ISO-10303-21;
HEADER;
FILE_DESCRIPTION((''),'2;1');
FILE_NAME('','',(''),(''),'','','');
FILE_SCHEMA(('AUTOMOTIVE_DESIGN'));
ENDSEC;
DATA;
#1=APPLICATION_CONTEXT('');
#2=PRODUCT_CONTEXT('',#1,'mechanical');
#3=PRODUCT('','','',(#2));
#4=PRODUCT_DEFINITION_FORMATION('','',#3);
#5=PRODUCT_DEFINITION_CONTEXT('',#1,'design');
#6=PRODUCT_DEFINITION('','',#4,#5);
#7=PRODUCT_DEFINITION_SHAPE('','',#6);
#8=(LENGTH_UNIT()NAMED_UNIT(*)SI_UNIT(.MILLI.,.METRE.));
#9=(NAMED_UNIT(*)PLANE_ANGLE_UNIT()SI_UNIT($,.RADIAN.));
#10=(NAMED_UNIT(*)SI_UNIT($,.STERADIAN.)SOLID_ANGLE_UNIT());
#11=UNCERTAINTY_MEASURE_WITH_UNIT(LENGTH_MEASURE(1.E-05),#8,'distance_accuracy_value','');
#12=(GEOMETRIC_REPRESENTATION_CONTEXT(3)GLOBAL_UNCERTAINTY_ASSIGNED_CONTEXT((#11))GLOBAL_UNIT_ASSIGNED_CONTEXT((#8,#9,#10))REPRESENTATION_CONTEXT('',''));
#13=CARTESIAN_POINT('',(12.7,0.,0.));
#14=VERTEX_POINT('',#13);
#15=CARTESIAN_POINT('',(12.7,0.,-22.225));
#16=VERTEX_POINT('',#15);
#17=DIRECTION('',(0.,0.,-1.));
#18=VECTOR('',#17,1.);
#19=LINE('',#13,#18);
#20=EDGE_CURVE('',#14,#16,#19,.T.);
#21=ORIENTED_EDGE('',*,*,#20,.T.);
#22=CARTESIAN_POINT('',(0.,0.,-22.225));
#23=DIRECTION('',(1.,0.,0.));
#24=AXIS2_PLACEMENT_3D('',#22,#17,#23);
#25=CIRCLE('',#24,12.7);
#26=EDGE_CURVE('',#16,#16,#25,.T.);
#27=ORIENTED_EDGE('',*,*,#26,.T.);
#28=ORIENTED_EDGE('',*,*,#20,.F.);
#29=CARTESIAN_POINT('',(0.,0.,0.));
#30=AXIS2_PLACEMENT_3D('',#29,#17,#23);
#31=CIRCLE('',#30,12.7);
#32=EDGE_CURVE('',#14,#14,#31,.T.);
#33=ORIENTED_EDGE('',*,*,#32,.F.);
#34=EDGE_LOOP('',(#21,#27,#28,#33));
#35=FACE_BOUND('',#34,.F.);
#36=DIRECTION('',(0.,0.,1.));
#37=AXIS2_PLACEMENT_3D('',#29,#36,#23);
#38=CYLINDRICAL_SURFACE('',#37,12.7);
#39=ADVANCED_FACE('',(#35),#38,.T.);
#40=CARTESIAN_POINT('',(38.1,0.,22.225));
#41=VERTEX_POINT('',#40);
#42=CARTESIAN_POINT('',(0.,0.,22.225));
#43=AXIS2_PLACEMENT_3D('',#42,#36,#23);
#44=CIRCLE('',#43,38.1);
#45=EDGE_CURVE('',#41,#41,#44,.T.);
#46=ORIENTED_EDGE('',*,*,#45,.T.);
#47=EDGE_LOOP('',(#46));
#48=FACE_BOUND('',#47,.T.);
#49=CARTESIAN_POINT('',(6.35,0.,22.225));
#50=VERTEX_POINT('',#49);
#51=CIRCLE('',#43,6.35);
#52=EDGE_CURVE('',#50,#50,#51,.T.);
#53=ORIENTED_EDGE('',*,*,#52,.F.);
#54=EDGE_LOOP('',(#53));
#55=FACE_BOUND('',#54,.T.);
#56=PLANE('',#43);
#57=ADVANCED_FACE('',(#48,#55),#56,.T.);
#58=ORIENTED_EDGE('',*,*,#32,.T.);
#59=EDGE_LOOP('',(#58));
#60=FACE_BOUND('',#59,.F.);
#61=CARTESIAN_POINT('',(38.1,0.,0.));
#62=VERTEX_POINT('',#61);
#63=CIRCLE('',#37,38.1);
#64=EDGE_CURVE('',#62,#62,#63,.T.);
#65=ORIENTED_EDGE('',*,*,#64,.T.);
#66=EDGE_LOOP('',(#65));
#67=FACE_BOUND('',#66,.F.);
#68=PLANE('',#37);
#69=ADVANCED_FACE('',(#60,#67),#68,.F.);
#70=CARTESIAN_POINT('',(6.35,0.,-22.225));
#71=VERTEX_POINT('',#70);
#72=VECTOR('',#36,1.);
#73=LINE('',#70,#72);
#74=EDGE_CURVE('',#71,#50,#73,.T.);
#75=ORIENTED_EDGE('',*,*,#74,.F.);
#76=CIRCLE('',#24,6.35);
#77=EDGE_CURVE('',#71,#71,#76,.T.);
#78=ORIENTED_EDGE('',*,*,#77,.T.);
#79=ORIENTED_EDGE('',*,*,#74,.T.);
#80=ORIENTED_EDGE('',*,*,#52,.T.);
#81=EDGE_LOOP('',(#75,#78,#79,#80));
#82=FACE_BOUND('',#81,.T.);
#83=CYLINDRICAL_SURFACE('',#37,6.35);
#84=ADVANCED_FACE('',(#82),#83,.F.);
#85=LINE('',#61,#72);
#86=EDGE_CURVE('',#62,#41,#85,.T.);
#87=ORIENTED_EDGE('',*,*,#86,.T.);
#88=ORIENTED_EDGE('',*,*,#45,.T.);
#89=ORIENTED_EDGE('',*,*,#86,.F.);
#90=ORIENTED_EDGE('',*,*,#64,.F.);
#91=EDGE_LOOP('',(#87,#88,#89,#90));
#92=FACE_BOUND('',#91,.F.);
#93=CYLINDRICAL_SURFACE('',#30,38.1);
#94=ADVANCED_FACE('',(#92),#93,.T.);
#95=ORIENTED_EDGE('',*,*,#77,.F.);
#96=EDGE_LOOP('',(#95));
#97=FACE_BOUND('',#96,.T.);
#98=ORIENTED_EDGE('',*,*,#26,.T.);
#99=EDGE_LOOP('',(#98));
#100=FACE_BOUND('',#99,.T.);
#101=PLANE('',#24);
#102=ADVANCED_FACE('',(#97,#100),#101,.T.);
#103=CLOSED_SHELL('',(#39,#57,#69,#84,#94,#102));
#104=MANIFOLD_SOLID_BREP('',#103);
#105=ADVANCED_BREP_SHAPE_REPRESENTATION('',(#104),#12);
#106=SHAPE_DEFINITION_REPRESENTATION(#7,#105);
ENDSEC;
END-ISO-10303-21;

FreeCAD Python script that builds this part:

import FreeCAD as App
import Part
import Sketcher
from FreeCAD import Vector
Q = App.Units.Quantity

doc = App.newDocument("Part")
body = doc.addObject("PartDesign::Body", "Body")

sketch1 = body.newObject("Sketcher::SketchObject", "Sketch")
sketch1.AttachmentSupport = (doc.getObject("XY_Plane"), [""])
sketch1.MapMode = "FlatFace"
sketch1.addGeometry(Part.Circle(Vector(0, 0, 0), Vector(0, 0, 1), 38), False)
sketch1.addConstraint([
    Sketcher.Constraint("Coincident", 0, 3, -1, 1),
    Sketcher.Constraint("Diameter", 0, Q("3 in")),
])
pad1 = body.newObject("PartDesign::Pad", "Pad")
pad1.Profile = sketch1
pad1.Length = Q("0.875 in")

sketch2 = body.newObject("Sketcher::SketchObject", "Sketch001")
sketch2.AttachmentSupport = (doc.getObject("XY_Plane"), [""])
sketch2.MapMode = "FlatFace"
sketch2.AttachmentOffset = App.Placement(Vector(0, 0, 0.875 * 25.4), App.Rotation())
sketch2.addGeometry(Part.Circle(Vector(0, 0, 0), Vector(0, 0, 1), 6), False)
sketch2.addConstraint([
    Sketcher.Constraint("Coincident", 0, 3, -1, 1),
    Sketcher.Constraint("Diameter", 0, Q("0.5 in")),
])
pocket1 = body.newObject("PartDesign::Pocket", "Pocket")
pocket1.Profile = sketch2
pocket1.Length = 35.49923

sketch3 = body.newObject("Sketcher::SketchObject", "Sketch002")
sketch3.AttachmentSupport = (doc.getObject("XY_Plane"), [""])
sketch3.MapMode = "FlatFace"
sketch3.addGeometry([
    Part.Circle(Vector(0, 0, 0), Vector(0, 0, 1), 13),
    Part.Circle(Vector(0, 0, 0), Vector(0, 0, 1), 6),
], False)
sketch3.addConstraint([
    Sketcher.Constraint("Coincident", 0, 3, -1, 1),
    Sketcher.Constraint("Coincident", 1, 3, -1, 1),
    Sketcher.Constraint("Diameter", 0, Q("1 in")),
    Sketcher.Constraint("Diameter", 1, Q("0.5 in")),
])
pad2 = body.newObject("PartDesign::Pad", "Pad001")
pad2.Profile = sketch3
pad2.Length = Q("0.875 in")
pad2.Reversed = True

doc.recompute()
